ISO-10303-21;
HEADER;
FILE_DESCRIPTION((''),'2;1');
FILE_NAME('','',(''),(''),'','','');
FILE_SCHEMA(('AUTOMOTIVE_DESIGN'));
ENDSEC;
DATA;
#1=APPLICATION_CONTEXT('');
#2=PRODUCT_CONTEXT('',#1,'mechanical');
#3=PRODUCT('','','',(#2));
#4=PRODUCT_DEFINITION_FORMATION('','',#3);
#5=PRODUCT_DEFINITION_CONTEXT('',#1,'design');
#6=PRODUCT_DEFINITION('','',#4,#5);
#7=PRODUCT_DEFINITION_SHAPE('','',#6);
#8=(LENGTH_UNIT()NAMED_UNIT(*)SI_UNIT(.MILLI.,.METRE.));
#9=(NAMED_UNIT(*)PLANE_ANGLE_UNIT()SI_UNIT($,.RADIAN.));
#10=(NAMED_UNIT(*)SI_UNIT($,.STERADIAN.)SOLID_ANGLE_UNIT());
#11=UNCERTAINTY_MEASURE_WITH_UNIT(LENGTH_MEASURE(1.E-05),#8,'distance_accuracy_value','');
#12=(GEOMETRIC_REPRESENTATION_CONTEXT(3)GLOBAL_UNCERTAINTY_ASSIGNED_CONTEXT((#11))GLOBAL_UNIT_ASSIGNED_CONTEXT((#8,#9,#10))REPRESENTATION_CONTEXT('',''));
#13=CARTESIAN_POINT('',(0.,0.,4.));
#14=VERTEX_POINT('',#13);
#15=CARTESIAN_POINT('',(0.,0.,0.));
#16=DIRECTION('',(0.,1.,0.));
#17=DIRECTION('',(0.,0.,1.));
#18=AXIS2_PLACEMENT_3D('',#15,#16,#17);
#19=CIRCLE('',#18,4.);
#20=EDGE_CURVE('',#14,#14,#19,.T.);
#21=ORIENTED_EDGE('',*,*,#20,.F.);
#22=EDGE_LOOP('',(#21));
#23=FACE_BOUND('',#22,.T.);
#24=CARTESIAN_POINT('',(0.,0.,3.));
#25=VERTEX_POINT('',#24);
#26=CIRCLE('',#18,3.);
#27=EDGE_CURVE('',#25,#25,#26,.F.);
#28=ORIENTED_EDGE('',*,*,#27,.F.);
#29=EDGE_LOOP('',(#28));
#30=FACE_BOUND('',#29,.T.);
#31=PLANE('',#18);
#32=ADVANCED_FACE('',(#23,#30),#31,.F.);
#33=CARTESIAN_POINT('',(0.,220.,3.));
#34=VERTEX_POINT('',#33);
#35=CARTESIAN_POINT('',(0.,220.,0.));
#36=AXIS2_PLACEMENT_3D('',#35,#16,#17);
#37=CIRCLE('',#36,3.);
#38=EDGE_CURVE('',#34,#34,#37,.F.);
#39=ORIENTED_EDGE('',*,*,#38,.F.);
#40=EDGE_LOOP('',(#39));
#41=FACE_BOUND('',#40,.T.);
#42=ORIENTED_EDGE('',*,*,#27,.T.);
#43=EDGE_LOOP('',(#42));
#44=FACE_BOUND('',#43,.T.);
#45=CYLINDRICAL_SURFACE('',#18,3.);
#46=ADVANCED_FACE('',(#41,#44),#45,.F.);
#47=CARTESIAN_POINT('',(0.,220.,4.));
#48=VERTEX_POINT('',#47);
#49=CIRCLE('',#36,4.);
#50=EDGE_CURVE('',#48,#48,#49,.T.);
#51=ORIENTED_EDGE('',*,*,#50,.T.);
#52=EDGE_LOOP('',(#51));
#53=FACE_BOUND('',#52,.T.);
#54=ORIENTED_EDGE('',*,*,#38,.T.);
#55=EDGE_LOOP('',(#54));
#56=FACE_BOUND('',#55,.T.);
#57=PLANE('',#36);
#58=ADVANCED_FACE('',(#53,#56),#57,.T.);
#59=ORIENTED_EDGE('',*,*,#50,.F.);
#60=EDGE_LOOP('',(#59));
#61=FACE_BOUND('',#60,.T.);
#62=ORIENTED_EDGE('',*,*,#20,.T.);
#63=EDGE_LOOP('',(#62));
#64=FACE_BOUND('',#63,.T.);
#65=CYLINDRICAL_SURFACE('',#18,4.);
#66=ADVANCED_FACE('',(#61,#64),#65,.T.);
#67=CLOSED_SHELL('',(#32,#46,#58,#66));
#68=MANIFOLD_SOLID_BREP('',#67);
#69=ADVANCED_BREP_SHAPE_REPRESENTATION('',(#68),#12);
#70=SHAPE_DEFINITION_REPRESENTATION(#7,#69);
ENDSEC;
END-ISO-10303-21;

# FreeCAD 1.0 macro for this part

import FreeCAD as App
import Part
import Sketcher
from FreeCAD import Vector
Q = App.Units.Quantity

doc = App.newDocument("Part")
params = doc.addObject("Spreadsheet::Sheet", "Params")
for row, (alias, value) in enumerate([
    ("sketch1_diameter", "8 mm"),
    ("sketch1_diameter2", "6 mm"),
    ("sketch2_height", "220 mm"),
], start=1):
    params.set(f"A{row}", alias)
    params.set(f"B{row}", "=" + value)
    params.setAlias(f"B{row}", alias)

body = doc.addObject("PartDesign::Body", "Body")

sketch1 = doc.addObject("Sketcher::SketchObject", "Sketch")
body.addObject(sketch1)
sketch1.AttachmentSupport = (doc.XZ_Plane, [""])
sketch1.MapMode = "FlatFace"
sketch1.addGeometry([
    Part.Circle(Vector(0, 0, 0), Vector(0, 0, 1), 4),
    Part.Circle(Vector(0, 0, 0), Vector(0, 0, 1), 3),
], False)
sketch1.addConstraint([
    Sketcher.Constraint("Coincident", 0, 3, -1, 1),
    Sketcher.Constraint("Coincident", 1, 3, -1, 1),
    Sketcher.Constraint("Diameter", 0, Q("8 mm")),
    Sketcher.Constraint("Diameter", 1, Q("6 mm")),
])
sketch1.setExpression("Constraints[2]", "Params.sketch1_diameter")
sketch1.setExpression("Constraints[3]", "Params.sketch1_diameter2")

sketch2 = doc.addObject("Sketcher::SketchObject", "Sketch001")
body.addObject(sketch2)
sketch2.AttachmentSupport = (doc.XY_Plane, [""])
sketch2.MapMode = "FlatFace"
sketch2.addGeometry(Part.LineSegment(Vector(0, 0, 0), Vector(0, 220, 0)), False)
sketch2.addConstraint([
    Sketcher.Constraint("Vertical", 0),
    Sketcher.Constraint("Coincident", 0, 1, -1, 1),
    Sketcher.Constraint("DistanceY", 0, 1, 0, 2, Q("220 mm")),
])
sketch2.setExpression("Constraints[2]", "Params.sketch2_height")
doc.recompute()

additivepipe = doc.addObject("PartDesign::AdditivePipe", "AdditivePipe")
body.addObject(additivepipe)
additivepipe.Profile = sketch1
additivepipe.Spine = (sketch2, ["Edge1"])

doc.recompute()
